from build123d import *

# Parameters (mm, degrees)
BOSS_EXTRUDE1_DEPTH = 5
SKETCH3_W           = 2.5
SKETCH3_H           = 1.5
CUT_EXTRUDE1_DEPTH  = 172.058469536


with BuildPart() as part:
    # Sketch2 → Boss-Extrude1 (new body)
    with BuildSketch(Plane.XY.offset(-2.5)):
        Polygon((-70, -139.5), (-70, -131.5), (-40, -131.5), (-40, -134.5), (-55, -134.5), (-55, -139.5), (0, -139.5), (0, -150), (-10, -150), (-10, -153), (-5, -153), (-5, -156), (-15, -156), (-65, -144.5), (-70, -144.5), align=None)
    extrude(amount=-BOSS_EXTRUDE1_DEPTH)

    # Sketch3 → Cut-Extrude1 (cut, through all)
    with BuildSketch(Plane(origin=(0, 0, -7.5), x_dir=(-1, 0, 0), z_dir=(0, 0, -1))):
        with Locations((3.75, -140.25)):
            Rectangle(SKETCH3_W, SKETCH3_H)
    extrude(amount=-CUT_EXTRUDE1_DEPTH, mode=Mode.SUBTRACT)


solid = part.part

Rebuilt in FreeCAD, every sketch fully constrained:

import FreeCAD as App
import Part
import Sketcher
from FreeCAD import Vector
Q = App.Units.Quantity

doc = App.newDocument("Part")
body = doc.addObject("PartDesign::Body", "Body")

# Sketch on XY plane
sketch1 = body.newObject("Sketcher::SketchObject", "Sketch")
sketch1.AttachmentSupport = (doc.getObject("XY_Plane"), [""])
sketch1.MapMode = "FlatFace"
sketch1.AttachmentOffset = App.Placement(Vector(0, 0, -2.5), App.Rotation())
sketch1.addGeometry([
    Part.LineSegment(Vector(-70, -131.5, 0), Vector(-70, -144.5, 0)),  # 0
    Part.LineSegment(Vector(-70, -144.5, 0), Vector(-65, -144.5, 0)),  # 1
    Part.LineSegment(Vector(-65, -144.5, 0), Vector(-15, -156, 0)),  # 2
    Part.LineSegment(Vector(-15, -156, 0), Vector(-5, -156, 0)),  # 3
    Part.LineSegment(Vector(-5, -156, 0), Vector(-5, -153, 0)),  # 4
    Part.LineSegment(Vector(-5, -153, 0), Vector(-10, -153, 0)),  # 5
    Part.LineSegment(Vector(-10, -153, 0), Vector(-10, -150, 0)),  # 6
    Part.LineSegment(Vector(-10, -150, 0), Vector(0, -150, 0)),  # 7
    Part.LineSegment(Vector(0, -150, 0), Vector(0, -139.5, 0)),  # 8
    Part.LineSegment(Vector(0, -139.5, 0), Vector(-55, -139.5, 0)),  # 9
    Part.LineSegment(Vector(-55, -139.5, 0), Vector(-55, -134.5, 0)),  # 10
    Part.LineSegment(Vector(-55, -134.5, 0), Vector(-40, -134.5, 0)),  # 11
    Part.LineSegment(Vector(-40, -134.5, 0), Vector(-40, -131.5, 0)),  # 12
    Part.LineSegment(Vector(-40, -131.5, 0), Vector(-70, -131.5, 0)),  # 13
], False)
sketch1.addConstraint([
    Sketcher.Constraint("Coincident", 0, 2, 1, 1),
    Sketcher.Constraint("Coincident", 1, 2, 2, 1),
    Sketcher.Constraint("Coincident", 2, 2, 3, 1),
    Sketcher.Constraint("Coincident", 3, 2, 4, 1),
    Sketcher.Constraint("Coincident", 4, 2, 5, 1),
    Sketcher.Constraint("Coincident", 5, 2, 6, 1),
    Sketcher.Constraint("Coincident", 6, 2, 7, 1),
    Sketcher.Constraint("Coincident", 7, 2, 8, 1),
    Sketcher.Constraint("Coincident", 8, 2, 9, 1),
    Sketcher.Constraint("Coincident", 9, 2, 10, 1),
    Sketcher.Constraint("Coincident", 10, 2, 11, 1),
    Sketcher.Constraint("Coincident", 11, 2, 12, 1),
    Sketcher.Constraint("Coincident", 12, 2, 13, 1),
    Sketcher.Constraint("Coincident", 13, 2, 0, 1),
    Sketcher.Constraint("Vertical", 0),
    Sketcher.Constraint("Horizontal", 1),
    Sketcher.Constraint("Horizontal", 3),
    Sketcher.Constraint("Vertical", 4),
    Sketcher.Constraint("Horizontal", 5),
    Sketcher.Constraint("Vertical", 6),
    Sketcher.Constraint("Horizontal", 7),
    Sketcher.Constraint("Vertical", 8),
    Sketcher.Constraint("Horizontal", 9),
    Sketcher.Constraint("Vertical", 10),
    Sketcher.Constraint("Horizontal", 11),
    Sketcher.Constraint("Vertical", 12),
    Sketcher.Constraint("Horizontal", 13),
    Sketcher.Constraint("PointOnObject", 7, 2, -2),
    Sketcher.Constraint("Equal", 1, 5),
    Sketcher.Constraint("Equal", 3, 7),
    Sketcher.Constraint("Equal", 4, 6),
    Sketcher.Constraint("Equal", 5, 10),
    Sketcher.Constraint("Equal", 6, 12),
    Sketcher.Constraint("DistanceX", 1, 1, 1, 2, Q("5 mm")),
    Sketcher.Constraint("DistanceX", 3, 1, 3, 2, Q("10 mm")),
    Sketcher.Constraint("DistanceX", 9, 2, 9, 1, Q("55 mm")),
    Sketcher.Constraint("DistanceX", 11, 1, 11, 2, Q("15 mm")),
    Sketcher.Constraint("DistanceX", 13, 2, 13, 1, Q("30 mm")),
    Sketcher.Constraint("DistanceY", 0, 2, 0, 1, Q("13 mm")),
    Sketcher.Constraint("DistanceY", 4, 1, 4, 2, Q("3 mm")),
    Sketcher.Constraint("DistanceY", 8, 1, 8, 2, Q("10.5 mm")),
    Sketcher.Constraint("DistanceY", 2, 2, -1, 1, Q("156 mm")),
])
pad1 = body.newObject("PartDesign::Pad", "Pad")
pad1.Profile = sketch1
pad1.Length = 5
pad1.Reversed = True

# Sketch on XY plane
sketch2 = body.newObject("Sketcher::SketchObject", "Sketch001")
sketch2.AttachmentSupport = (doc.getObject("XY_Plane"), [""])
sketch2.MapMode = "FlatFace"
sketch2.AttachmentOffset = App.Placement(Vector(0, 0, -7.5), App.Rotation())
sketch2.addGeometry([
    Part.LineSegment(Vector(-2.5, -139.5, 0), Vector(-2.5, -141, 0)),
    Part.LineSegment(Vector(-2.5, -141, 0), Vector(-5, -141, 0)),
    Part.LineSegment(Vector(-5, -141, 0), Vector(-5, -139.5, 0)),
    Part.LineSegment(Vector(-5, -139.5, 0), Vector(-2.5, -139.5, 0)),
], False)
sketch2.addConstraint([
    Sketcher.Constraint("Coincident", 0, 2, 1, 1),
    Sketcher.Constraint("Coincident", 1, 2, 2, 1),
    Sketcher.Constraint("Coincident", 2, 2, 3, 1),
    Sketcher.Constraint("Coincident", 3, 2, 0, 1),
    Sketcher.Constraint("Vertical", 0),
    Sketcher.Constraint("Horizontal", 1),
    Sketcher.Constraint("Vertical", 2),
    Sketcher.Constraint("Horizontal", 3),
    Sketcher.Constraint("DistanceX", 1, 2, 1, 1, Q("2.5 mm")),
    Sketcher.Constraint("DistanceY", 0, 2, 0, 1, Q("1.5 mm")),
    Sketcher.Constraint("DistanceY", 0, 2, -1, 1, Q("141 mm")),
    Sketcher.Constraint("DistanceX", 1, 2, -1, 1, Q("5 mm")),
])
pocket1 = body.newObject("PartDesign::Pocket", "Pocket")
pocket1.Profile = sketch2
pocket1.Type = "ThroughAll"
pocket1.Reversed = True

doc.recompute()
